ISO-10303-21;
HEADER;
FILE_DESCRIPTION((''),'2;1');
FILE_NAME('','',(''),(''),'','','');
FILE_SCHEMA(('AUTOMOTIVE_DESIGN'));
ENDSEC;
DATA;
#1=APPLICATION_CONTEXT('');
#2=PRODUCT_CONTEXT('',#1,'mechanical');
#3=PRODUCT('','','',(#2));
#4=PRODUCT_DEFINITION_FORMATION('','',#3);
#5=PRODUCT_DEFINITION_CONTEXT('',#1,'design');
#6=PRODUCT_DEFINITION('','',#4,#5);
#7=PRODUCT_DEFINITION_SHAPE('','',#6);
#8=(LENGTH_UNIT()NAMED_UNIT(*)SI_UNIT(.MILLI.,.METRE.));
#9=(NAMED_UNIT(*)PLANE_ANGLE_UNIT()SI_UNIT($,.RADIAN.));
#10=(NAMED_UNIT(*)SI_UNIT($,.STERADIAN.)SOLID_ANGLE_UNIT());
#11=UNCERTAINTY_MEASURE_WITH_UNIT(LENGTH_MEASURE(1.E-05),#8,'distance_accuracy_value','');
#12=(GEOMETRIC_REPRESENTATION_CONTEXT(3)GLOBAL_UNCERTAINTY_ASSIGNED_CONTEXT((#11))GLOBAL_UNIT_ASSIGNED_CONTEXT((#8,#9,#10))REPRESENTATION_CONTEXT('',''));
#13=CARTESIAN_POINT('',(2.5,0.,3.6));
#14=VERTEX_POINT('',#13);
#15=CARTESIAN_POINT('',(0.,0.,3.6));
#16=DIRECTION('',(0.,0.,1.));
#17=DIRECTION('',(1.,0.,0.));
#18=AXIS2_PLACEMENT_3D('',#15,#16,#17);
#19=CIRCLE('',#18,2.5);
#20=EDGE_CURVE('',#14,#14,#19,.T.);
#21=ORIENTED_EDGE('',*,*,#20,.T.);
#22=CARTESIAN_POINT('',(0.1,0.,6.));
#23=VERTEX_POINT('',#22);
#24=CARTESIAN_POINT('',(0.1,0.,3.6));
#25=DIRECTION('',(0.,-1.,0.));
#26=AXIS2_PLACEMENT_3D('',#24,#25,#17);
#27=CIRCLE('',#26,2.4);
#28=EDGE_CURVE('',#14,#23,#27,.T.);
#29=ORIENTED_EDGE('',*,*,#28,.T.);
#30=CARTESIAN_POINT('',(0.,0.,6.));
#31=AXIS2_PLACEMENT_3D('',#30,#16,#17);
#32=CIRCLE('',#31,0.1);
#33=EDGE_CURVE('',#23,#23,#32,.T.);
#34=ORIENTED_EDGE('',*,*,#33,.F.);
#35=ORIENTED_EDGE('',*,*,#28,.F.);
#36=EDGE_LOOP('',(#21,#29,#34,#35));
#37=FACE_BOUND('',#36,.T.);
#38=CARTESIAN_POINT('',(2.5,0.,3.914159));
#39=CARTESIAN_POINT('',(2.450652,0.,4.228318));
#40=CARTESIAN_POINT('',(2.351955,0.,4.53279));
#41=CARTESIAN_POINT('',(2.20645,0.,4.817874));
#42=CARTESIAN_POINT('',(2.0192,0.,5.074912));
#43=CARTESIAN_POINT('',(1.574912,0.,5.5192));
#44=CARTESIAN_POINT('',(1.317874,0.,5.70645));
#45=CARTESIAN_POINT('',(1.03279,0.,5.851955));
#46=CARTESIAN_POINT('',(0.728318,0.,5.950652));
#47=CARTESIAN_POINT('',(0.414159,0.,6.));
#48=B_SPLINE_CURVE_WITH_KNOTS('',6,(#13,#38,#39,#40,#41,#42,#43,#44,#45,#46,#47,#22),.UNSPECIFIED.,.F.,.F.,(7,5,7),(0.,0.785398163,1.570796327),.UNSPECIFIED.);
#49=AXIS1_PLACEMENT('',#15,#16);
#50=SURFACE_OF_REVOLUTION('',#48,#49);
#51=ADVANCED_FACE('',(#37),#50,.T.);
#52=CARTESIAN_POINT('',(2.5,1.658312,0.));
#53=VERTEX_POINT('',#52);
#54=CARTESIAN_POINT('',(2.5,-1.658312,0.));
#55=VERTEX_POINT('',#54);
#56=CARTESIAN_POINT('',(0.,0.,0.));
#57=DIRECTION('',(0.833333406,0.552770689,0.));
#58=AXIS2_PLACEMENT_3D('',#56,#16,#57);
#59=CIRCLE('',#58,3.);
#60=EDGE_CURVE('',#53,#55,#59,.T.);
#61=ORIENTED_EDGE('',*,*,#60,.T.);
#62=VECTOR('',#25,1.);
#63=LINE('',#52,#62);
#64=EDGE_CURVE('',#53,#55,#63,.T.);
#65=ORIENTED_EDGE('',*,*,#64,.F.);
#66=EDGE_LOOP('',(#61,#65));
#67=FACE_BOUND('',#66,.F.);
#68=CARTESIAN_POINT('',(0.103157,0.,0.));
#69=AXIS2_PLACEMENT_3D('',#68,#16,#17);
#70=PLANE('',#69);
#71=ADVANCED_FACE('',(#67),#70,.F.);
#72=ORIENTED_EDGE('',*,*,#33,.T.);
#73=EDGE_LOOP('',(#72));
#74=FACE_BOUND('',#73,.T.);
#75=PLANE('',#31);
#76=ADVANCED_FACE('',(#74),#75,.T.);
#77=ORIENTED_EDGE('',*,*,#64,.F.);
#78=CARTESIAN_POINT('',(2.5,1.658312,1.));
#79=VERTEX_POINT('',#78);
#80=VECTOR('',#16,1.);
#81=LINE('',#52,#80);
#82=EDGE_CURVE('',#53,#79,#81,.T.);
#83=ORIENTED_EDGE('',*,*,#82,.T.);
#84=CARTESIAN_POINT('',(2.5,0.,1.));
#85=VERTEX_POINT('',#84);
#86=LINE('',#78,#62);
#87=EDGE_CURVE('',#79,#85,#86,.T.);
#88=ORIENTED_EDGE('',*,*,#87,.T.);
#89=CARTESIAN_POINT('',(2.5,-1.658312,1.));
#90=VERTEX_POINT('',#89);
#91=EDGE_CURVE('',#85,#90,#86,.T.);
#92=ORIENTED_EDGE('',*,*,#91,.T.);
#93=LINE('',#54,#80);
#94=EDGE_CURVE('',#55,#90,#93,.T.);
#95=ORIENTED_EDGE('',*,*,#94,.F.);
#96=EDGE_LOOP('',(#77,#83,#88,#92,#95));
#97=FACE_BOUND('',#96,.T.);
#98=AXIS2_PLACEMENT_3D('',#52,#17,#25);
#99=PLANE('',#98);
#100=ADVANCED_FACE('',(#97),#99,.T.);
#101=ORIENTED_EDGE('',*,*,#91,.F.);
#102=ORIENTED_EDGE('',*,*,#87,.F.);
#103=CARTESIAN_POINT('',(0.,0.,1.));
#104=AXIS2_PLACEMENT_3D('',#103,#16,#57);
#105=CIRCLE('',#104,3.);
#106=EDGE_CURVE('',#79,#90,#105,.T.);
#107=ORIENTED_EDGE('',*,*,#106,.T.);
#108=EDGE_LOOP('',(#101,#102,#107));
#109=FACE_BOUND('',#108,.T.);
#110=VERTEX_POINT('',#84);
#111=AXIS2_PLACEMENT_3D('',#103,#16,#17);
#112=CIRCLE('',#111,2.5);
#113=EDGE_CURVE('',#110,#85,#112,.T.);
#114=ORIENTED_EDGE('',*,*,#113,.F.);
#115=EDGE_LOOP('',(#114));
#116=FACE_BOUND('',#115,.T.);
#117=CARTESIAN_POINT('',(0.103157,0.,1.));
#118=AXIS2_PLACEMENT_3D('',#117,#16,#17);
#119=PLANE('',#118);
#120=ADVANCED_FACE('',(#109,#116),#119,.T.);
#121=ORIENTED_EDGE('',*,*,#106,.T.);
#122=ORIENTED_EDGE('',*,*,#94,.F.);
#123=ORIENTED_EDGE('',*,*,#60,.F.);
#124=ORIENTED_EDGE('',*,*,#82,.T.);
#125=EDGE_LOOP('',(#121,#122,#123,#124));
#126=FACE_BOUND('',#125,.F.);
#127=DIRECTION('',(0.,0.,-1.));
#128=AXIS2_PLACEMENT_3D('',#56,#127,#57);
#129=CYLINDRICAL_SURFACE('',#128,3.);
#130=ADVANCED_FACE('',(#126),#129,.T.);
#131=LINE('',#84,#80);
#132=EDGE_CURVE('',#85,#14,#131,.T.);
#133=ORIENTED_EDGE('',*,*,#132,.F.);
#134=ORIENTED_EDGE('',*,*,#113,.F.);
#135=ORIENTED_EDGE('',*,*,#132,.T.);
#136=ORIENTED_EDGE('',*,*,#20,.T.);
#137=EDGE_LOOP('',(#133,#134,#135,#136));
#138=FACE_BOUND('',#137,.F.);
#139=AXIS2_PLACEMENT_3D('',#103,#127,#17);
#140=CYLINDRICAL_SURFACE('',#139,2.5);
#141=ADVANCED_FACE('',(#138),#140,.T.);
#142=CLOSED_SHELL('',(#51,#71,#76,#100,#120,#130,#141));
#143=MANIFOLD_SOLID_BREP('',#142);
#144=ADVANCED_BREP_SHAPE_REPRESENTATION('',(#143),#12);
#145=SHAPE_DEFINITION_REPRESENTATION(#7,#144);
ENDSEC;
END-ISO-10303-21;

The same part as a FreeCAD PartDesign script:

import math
import FreeCAD as App
import Part
import Sketcher
from FreeCAD import Vector


def edges_at(feature, points):
    """Names of the edges that pass closest to the given points."""
    edges = feature.Shape.Edges
    near = lambda p: min(range(len(edges)), key=lambda i: edges[i].distToShape(Part.Vertex(*p))[0])
    return sorted({f"Edge{near(p) + 1}" for p in points})

doc = App.newDocument("Part")
body = doc.addObject("PartDesign::Body", "Body")

sketch1 = body.newObject("Sketcher::SketchObject", "Sketch")
sketch1.AttachmentSupport = (doc.getObject("XY_Plane"), [""])
sketch1.MapMode = "FlatFace"
sketch1.addGeometry([
    Part.ArcOfCircle(Part.Circle(Vector(0, 0, 0), Vector(0, 0, 1), 3), math.radians(33.557302), math.radians(326.442698)),
    Part.LineSegment(Vector(2.5, -1.658312, 0), Vector(2.5, 1.658312, 0)),
], False)
sketch1.addConstraint([
    Sketcher.Constraint("Coincident", 0, 1, 1, 2),
    Sketcher.Constraint("Coincident", 1, 1, 0, 2),
    Sketcher.Constraint("Vertical", 1),
    Sketcher.Constraint("Coincident", 0, 3, -1, 1),
    Sketcher.Constraint("Radius", 0, 3.0),
    Sketcher.Constraint("DistanceX", -1, 1, 0, 1, 2.5),
])
pad1 = body.newObject("PartDesign::Pad", "Pad")
pad1.Profile = sketch1
pad1.Length = 1
body2 = doc.addObject("PartDesign::Body", "Body001")

sketch2 = body2.newObject("Sketcher::SketchObject", "Sketch001")
sketch2.AttachmentSupport = (doc.getObject("XY_Plane001"), [""])
sketch2.MapMode = "FlatFace"
sketch2.AttachmentOffset = App.Placement(Vector(0, 0, 1), App.Rotation())
sketch2.addGeometry(Part.Circle(Vector(0, 0, 0), Vector(0, 0, 1), 2.5), False)
sketch2.addConstraint([
    Sketcher.Constraint("Coincident", 0, 3, -1, 1),
    Sketcher.Constraint("Diameter", 0, 5.0),
])
pad2 = body2.newObject("PartDesign::Pad", "Pad001")
pad2.Profile = sketch2
pad2.Length = 5
doc.recompute()

fillet = body2.newObject("PartDesign::Fillet", "Fillet")
fillet.Base = (pad2, edges_at(pad2, [(-2.5, 0, 6)]))
fillet.Radius = 2.4
doc.recompute()

boolean = body2.newObject("PartDesign::Boolean", "Boolean")
boolean.Type = "Fuse"
boolean.addObjects([body])

doc.recompute()
